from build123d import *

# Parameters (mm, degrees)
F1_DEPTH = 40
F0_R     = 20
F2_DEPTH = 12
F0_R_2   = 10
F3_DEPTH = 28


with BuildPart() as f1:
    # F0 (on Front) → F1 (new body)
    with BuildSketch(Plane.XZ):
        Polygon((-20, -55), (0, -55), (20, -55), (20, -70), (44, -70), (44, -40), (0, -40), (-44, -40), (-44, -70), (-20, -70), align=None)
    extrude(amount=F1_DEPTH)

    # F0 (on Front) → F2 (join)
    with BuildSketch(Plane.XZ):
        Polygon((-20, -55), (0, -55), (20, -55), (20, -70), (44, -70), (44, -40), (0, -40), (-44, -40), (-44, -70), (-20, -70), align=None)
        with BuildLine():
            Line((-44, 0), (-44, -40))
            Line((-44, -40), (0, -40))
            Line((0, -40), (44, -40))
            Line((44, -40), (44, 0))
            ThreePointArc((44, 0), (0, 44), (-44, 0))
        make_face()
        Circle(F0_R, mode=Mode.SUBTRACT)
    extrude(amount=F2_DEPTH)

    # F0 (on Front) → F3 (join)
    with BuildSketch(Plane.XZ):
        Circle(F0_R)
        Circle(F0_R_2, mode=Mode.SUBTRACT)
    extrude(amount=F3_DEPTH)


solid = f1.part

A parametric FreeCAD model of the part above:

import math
import FreeCAD as App
import Part
import Sketcher
Q = App.Units.Quantity

doc = App.newDocument("Part")
body = doc.addObject("PartDesign::Body", "Body")

# Sketch on XZ plane
sketch1 = body.newObject("Sketcher::SketchObject", "Sketch")
sketch1.AttachmentSupport = (doc.getObject("XZ_Plane"), [""])
sketch1.MapMode = "FlatFace"
sketch1.addGeometry([
    Part.LineSegment(App.Vector(-20, -55, 0), App.Vector(20, -55, 0)),  # 0
    Part.LineSegment(App.Vector(20, -55, 0), App.Vector(20, -70, 0)),  # 1
    Part.LineSegment(App.Vector(20, -70, 0), App.Vector(44, -70, 0)),  # 2
    Part.LineSegment(App.Vector(44, -70, 0), App.Vector(44, -40, 0)),  # 3
    Part.LineSegment(App.Vector(44, -40, 0), App.Vector(-44, -40, 0)),  # 4
    Part.LineSegment(App.Vector(-44, -40, 0), App.Vector(-44, -70, 0)),  # 5
    Part.LineSegment(App.Vector(-44, -70, 0), App.Vector(-20, -70, 0)),  # 6
    Part.LineSegment(App.Vector(-20, -70, 0), App.Vector(-20, -55, 0)),  # 7
], False)
sketch1.addConstraint([
    Sketcher.Constraint("Coincident", 0, 2, 1, 1),
    Sketcher.Constraint("Coincident", 1, 2, 2, 1),
    Sketcher.Constraint("Coincident", 2, 2, 3, 1),
    Sketcher.Constraint("Coincident", 3, 2, 4, 1),
    Sketcher.Constraint("Coincident", 4, 2, 5, 1),
    Sketcher.Constraint("Coincident", 5, 2, 6, 1),
    Sketcher.Constraint("Coincident", 6, 2, 7, 1),
    Sketcher.Constraint("Coincident", 7, 2, 0, 1),
    Sketcher.Constraint("Horizontal", 0),
    Sketcher.Constraint("Vertical", 1),
    Sketcher.Constraint("Horizontal", 2),
    Sketcher.Constraint("Vertical", 3),
    Sketcher.Constraint("Horizontal", 4),
    Sketcher.Constraint("Vertical", 5),
    Sketcher.Constraint("Horizontal", 6),
    Sketcher.Constraint("Vertical", 7),
    Sketcher.Constraint("Symmetric", 2, 2, 5, 2, -2),
    Sketcher.Constraint("Equal", 2, 6),
    Sketcher.Constraint("DistanceX", 0, 1, 0, 2, Q("40 mm")),
    Sketcher.Constraint("DistanceX", 2, 1, 2, 2, Q("24 mm")),
    Sketcher.Constraint("DistanceY", 1, 2, 1, 1, Q("15 mm")),
    Sketcher.Constraint("DistanceY", 3, 1, 3, 2, Q("30 mm")),
    Sketcher.Constraint("DistanceY", 0, 2, -1, 1, Q("55 mm")),
])
pad1 = body.newObject("PartDesign::Pad", "Pad")
pad1.Profile = sketch1
pad1.Length = 40

# Sketch on XZ plane
sketch2 = body.newObject("Sketcher::SketchObject", "Sketch001")
sketch2.AttachmentSupport = (doc.getObject("XZ_Plane"), [""])
sketch2.MapMode = "FlatFace"
sketch2.addGeometry([
    Part.LineSegment(App.Vector(-20, -55, 0), App.Vector(20, -55, 0)),  # 0
    Part.LineSegment(App.Vector(20, -55, 0), App.Vector(20, -70, 0)),  # 1
    Part.LineSegment(App.Vector(20, -70, 0), App.Vector(44, -70, 0)),  # 2
    Part.LineSegment(App.Vector(44, -70, 0), App.Vector(44, 0, 0)),  # 3
    Part.ArcOfCircle(Part.Circle(App.Vector(0, 0, 0), App.Vector(0, 0, 1), 44), math.radians(0), math.radians(180)),  # 4
    Part.LineSegment(App.Vector(-44, 0, 0), App.Vector(-44, -70, 0)),  # 5
    Part.LineSegment(App.Vector(-44, -70, 0), App.Vector(-20, -70, 0)),  # 6
    Part.LineSegment(App.Vector(-20, -70, 0), App.Vector(-20, -55, 0)),  # 7
    Part.Circle(App.Vector(0, 0, 0), App.Vector(0, 0, 1), 20),  # 8
], False)
sketch2.addConstraint([
    Sketcher.Constraint("Coincident", 0, 2, 1, 1),
    Sketcher.Constraint("Coincident", 1, 2, 2, 1),
    Sketcher.Constraint("Coincident", 2, 2, 3, 1),
    Sketcher.Constraint("Tangent", 3, 2, 4, 1),
    Sketcher.Constraint("Tangent", 4, 2, 5, 1),
    Sketcher.Constraint("Coincident", 5, 2, 6, 1),
    Sketcher.Constraint("Coincident", 6, 2, 7, 1),
    Sketcher.Constraint("Coincident", 7, 2, 0, 1),
    Sketcher.Constraint("Horizontal", 0),
    Sketcher.Constraint("Vertical", 1),
    Sketcher.Constraint("Horizontal", 2),
    Sketcher.Constraint("Vertical", 3),
    Sketcher.Constraint("Vertical", 5),
    Sketcher.Constraint("Horizontal", 6),
    Sketcher.Constraint("Vertical", 7),
    Sketcher.Constraint("Coincident", 4, 3, -1, 1),
    Sketcher.Constraint("Coincident", 8, 3, -1, 1),
    Sketcher.Constraint("Symmetric", 1, 2, 6, 2, -2),
    Sketcher.Constraint("Diameter", 8, Q("40 mm")),
    Sketcher.Constraint("Radius", 4, Q("44 mm")),
    Sketcher.Constraint("DistanceX", 0, 1, 0, 2, Q("40 mm")),
    Sketcher.Constraint("DistanceY", 1, 2, 1, 1, Q("15 mm")),
    Sketcher.Constraint("DistanceY", 3, 1, 3, 2, Q("70 mm")),
])
pad2 = body.newObject("PartDesign::Pad", "Pad001")
pad2.Profile = sketch2
pad2.Length = 12

# Sketch on XZ plane
sketch3 = body.newObject("Sketcher::SketchObject", "Sketch002")
sketch3.AttachmentSupport = (doc.getObject("XZ_Plane"), [""])
sketch3.MapMode = "FlatFace"
sketch3.addGeometry([
    Part.Circle(App.Vector(0, 0, 0), App.Vector(0, 0, 1), 20),
    Part.Circle(App.Vector(0, 0, 0), App.Vector(0, 0, 1), 10),
], False)
sketch3.addConstraint([
    Sketcher.Constraint("Coincident", 0, 3, -1, 1),
    Sketcher.Constraint("Coincident", 1, 3, -1, 1),
    Sketcher.Constraint("Diameter", 0, Q("40 mm")),
    Sketcher.Constraint("Diameter", 1, Q("20 mm")),
])
pad3 = body.newObject("PartDesign::Pad", "Pad002")
pad3.Profile = sketch3
pad3.Length = 28

doc.recompute()
